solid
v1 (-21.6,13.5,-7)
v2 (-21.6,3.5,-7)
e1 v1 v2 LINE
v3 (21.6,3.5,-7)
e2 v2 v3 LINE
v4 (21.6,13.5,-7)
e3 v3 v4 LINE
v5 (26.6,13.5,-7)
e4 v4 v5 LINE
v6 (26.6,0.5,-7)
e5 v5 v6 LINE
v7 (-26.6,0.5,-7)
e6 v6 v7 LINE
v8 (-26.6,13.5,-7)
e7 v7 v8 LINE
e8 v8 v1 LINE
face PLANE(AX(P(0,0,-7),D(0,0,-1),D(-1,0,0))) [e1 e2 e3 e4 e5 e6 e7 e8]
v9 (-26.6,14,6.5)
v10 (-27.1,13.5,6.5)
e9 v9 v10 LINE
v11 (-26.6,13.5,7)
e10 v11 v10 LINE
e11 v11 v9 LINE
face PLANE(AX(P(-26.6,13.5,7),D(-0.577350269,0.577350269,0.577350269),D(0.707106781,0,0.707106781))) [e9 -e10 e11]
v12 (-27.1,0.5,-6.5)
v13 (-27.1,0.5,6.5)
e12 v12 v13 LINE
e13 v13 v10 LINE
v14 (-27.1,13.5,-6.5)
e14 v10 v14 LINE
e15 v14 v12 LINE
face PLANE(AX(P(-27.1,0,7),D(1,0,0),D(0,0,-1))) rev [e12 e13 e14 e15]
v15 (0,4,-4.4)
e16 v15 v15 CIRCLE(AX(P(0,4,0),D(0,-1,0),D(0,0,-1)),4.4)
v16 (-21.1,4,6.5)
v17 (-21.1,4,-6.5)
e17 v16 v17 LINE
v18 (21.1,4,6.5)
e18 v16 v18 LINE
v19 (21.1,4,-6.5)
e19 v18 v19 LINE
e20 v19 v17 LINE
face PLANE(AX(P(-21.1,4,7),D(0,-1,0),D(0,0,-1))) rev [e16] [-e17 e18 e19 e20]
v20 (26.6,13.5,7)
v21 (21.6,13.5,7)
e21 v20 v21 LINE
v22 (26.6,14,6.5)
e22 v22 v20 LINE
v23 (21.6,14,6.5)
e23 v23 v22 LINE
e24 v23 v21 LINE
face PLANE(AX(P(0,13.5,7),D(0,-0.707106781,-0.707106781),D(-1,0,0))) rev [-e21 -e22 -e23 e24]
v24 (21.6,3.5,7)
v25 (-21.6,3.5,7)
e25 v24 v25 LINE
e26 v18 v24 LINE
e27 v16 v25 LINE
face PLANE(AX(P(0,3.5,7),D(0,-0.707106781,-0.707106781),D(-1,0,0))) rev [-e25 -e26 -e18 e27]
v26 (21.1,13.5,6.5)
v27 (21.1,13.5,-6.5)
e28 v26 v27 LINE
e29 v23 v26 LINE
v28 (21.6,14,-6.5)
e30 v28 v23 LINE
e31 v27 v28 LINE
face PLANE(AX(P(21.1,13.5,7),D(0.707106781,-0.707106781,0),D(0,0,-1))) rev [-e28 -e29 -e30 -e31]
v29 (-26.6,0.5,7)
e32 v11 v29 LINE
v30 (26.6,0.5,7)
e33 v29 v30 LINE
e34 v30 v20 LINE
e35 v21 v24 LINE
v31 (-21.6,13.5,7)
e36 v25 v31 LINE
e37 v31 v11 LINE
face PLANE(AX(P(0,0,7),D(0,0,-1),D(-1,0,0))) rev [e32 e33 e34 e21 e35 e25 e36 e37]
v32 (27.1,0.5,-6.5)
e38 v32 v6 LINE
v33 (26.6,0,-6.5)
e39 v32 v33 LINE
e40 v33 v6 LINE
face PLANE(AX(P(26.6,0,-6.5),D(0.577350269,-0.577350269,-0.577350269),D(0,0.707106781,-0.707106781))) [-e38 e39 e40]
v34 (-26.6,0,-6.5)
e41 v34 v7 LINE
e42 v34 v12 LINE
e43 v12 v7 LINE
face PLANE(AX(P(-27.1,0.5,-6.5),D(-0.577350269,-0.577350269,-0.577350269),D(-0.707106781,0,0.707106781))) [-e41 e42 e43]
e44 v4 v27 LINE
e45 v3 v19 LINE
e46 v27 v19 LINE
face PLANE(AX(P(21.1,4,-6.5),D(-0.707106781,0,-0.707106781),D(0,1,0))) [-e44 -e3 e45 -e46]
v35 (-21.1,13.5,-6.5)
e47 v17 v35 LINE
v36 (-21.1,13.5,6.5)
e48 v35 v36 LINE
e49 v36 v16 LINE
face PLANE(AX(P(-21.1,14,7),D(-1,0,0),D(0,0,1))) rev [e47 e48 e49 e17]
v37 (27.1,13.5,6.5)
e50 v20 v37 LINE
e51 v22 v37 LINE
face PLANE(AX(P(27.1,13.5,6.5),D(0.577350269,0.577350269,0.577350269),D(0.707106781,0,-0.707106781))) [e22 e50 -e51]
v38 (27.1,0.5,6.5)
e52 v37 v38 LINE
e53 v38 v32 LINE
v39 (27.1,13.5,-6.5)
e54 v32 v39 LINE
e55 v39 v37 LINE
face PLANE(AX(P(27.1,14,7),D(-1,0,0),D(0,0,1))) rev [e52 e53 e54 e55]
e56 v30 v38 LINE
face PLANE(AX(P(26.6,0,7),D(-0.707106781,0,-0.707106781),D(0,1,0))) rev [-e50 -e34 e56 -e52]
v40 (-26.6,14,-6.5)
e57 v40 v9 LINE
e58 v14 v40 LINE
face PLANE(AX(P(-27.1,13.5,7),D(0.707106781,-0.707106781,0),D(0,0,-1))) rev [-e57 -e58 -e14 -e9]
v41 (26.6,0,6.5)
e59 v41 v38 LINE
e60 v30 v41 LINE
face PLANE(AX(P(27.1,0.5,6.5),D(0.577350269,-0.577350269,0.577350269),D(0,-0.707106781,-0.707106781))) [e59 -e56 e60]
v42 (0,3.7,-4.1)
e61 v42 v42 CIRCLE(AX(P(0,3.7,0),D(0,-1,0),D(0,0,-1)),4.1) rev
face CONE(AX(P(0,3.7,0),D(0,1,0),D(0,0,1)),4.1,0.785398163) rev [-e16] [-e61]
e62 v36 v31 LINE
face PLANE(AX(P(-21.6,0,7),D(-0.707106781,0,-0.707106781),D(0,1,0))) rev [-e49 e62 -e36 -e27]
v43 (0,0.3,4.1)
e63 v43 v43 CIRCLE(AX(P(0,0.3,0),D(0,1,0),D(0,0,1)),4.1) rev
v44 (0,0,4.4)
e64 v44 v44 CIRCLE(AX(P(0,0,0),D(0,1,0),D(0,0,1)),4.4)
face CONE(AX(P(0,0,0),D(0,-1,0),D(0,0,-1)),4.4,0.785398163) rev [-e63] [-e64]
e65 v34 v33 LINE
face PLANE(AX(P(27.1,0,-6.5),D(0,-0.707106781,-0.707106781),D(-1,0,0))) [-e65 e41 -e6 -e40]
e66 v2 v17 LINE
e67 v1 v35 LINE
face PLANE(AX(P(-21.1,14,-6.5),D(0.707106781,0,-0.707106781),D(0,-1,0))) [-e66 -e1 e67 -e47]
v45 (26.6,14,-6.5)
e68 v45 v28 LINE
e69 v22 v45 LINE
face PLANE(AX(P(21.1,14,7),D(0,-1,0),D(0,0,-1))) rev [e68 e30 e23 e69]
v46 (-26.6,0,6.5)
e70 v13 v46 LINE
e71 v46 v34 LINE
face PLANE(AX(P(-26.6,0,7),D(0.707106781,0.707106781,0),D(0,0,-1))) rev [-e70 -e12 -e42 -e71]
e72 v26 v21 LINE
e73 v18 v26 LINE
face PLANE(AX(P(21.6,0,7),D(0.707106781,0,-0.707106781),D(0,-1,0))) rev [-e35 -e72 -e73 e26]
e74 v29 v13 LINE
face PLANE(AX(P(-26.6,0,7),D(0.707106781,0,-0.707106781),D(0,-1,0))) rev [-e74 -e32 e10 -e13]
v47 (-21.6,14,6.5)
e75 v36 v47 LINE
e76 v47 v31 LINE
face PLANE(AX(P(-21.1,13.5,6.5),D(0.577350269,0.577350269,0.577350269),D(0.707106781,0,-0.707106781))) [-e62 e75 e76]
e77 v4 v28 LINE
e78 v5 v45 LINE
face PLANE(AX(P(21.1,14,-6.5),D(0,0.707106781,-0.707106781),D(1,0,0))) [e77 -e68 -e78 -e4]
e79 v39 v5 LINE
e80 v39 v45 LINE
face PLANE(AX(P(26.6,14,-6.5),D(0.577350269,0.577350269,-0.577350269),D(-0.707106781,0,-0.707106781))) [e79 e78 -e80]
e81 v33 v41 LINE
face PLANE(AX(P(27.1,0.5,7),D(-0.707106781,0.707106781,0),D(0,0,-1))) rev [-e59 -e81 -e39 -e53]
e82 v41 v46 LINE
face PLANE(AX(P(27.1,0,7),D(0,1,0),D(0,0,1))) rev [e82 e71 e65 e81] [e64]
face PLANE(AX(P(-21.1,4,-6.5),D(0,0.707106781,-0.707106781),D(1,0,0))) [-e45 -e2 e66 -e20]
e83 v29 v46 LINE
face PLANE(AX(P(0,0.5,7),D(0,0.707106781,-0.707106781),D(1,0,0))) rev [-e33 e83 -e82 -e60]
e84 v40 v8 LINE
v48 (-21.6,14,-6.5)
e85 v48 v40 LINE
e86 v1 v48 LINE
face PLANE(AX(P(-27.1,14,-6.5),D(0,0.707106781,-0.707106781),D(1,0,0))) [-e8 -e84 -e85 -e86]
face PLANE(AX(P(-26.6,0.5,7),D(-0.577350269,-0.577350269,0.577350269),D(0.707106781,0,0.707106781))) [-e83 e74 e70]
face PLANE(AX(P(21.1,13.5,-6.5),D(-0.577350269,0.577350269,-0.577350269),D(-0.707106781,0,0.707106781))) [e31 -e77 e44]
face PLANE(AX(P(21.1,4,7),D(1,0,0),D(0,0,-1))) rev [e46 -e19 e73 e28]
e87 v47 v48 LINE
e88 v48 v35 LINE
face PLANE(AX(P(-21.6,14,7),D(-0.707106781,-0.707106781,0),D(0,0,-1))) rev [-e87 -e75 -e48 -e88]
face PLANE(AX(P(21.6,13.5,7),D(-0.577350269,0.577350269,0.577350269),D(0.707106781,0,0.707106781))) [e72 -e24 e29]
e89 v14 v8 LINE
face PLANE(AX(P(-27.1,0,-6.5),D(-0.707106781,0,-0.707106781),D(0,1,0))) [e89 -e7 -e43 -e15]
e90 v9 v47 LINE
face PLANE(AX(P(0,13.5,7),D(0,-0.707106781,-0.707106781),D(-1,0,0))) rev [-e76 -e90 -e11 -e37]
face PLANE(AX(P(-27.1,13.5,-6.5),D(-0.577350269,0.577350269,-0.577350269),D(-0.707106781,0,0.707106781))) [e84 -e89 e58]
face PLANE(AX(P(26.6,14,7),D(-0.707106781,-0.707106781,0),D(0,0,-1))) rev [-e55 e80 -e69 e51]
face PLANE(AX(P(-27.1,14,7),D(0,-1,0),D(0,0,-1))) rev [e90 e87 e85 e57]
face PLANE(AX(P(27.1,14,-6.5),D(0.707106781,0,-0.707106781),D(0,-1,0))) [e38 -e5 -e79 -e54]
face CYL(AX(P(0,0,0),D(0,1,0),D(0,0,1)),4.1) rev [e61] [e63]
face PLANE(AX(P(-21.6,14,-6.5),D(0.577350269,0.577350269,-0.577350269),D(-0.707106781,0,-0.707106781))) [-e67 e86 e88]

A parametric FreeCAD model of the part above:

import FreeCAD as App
import Part
import Sketcher
from FreeCAD import Vector


def edges_at(feature, points):
    """Names of the edges that pass closest to the given points."""
    edges = feature.Shape.Edges
    near = lambda p: min(range(len(edges)), key=lambda i: edges[i].distToShape(Part.Vertex(*p))[0])
    return sorted({f"Edge{near(p) + 1}" for p in points})


def add_polygon(sketch, points):
    """Adds a closed chain of lines whose ends are joined by coincident constraints."""
    first, n = sketch.GeometryCount, len(points)
    for a, b in zip(points, points[1:] + points[:1]):
        sketch.addGeometry(Part.LineSegment(App.Vector(*a, 0), App.Vector(*b, 0)), False)
    for i in range(n):
        sketch.addConstraint(Sketcher.Constraint("Coincident", first + i, 2, first + (i + 1) % n, 1))

doc = App.newDocument("Part")
body = doc.addObject("PartDesign::Body", "Body")

# Sketch on XY plane
sketch1 = body.newObject("Sketcher::SketchObject", "Sketch")
sketch1.AttachmentSupport = (doc.getObject("XY_Plane"), [""])
sketch1.MapMode = "FlatFace"
add_polygon(sketch1, [(-21, 4), (-21, 14), (-27, 14), (-27, 0), (27, 0), (27, 14), (21, 14), (21, 4)])  # lines 0-7
sketch1.addConstraint(Sketcher.Constraint("Vertical", 0))
sketch1.addConstraint(Sketcher.Constraint("Horizontal", 1))
sketch1.addConstraint(Sketcher.Constraint("Vertical", 2))
sketch1.addConstraint(Sketcher.Constraint("Horizontal", 3))
sketch1.addConstraint(Sketcher.Constraint("Vertical", 4))
sketch1.addConstraint(Sketcher.Constraint("Horizontal", 5))
sketch1.addConstraint(Sketcher.Constraint("Vertical", 6))
sketch1.addConstraint(Sketcher.Constraint("Horizontal", 7))
sketch1.addConstraint(Sketcher.Constraint("Symmetric", 2, 2, 3, 2, -1, 1))
sketch1.addConstraint(Sketcher.Constraint("Symmetric", 0, 2, 5, 2, -2))
sketch1.addConstraint(Sketcher.Constraint("DistanceX", 1, 2, 1, 1, 6.0))
sketch1.addConstraint(Sketcher.Constraint("DistanceY", 0, 1, 0, 2, 10.0))
sketch1.addConstraint(Sketcher.Constraint("DistanceY", 2, 2, 2, 1, 14.0))
sketch1.addConstraint(Sketcher.Constraint("DistanceX", 3, 1, 3, 2, 54.2))
pad1 = body.newObject("PartDesign::Pad", "Pad")
pad1.Profile = sketch1
pad1.Length = 14
pad1.Midplane = True

# Sketch on XZ plane
sketch2 = body.newObject("Sketcher::SketchObject", "Sketch001")
sketch2.AttachmentSupport = (doc.getObject("XZ_Plane"), [""])
sketch2.MapMode = "FlatFace"
sketch2.AttachmentOffset = App.Placement(Vector(0, 0, -4), App.Rotation())
sketch2.addGeometry(Part.Circle(Vector(0, 0, 0), Vector(0, 0, 1), 4.1), False)
sketch2.addConstraint(Sketcher.Constraint("Coincident", 0, 3, -1, 1))
sketch2.addConstraint(Sketcher.Constraint("Diameter", 0, 8.2))
pocket1 = body.newObject("PartDesign::Pocket", "Pocket")
pocket1.Profile = sketch2
pocket1.Type = "ThroughAll"
pocket1.Reversed = True
doc.recompute()

chamfer = body.newObject("PartDesign::Chamfer", "Chamfer")
chamfer.Base = (pocket1, edges_at(pocket1, [
    (27.1, 7, -7),
    (0, 0, -7),
    (-27.1, 7, -7),
    (-24.1, 14, -7),
    (0, 0, 7),
    (-21.1, 14, 0),
    (21.1, 14, 0),
    (27.1, 14, 0),
    (27.1, 0, 0),
    (-27.1, 0, 0),
    (-27.1, 14, 0),
    (27.1, 7, 7),
    (24.1, 14, 7),
    (21.1, 9, 7),
    (0, 4, 7),
    (-21.1, 9, 7),
    (-24.1, 14, 7),
    (-21.1, 9, -7),
    (-27.1, 7, 7),
    (0, 4, -7),
    (21.1, 9, -7),
    (24.1, 14, -7),
]))
chamfer.Size = 0.5
doc.recompute()

chamfer2 = body.newObject("PartDesign::Chamfer", "Chamfer001")
chamfer2.Base = (chamfer, edges_at(chamfer, [(0, 0, -4.1), (0, 4, -4.1)]))
chamfer2.Size = 0.3

doc.recompute()
